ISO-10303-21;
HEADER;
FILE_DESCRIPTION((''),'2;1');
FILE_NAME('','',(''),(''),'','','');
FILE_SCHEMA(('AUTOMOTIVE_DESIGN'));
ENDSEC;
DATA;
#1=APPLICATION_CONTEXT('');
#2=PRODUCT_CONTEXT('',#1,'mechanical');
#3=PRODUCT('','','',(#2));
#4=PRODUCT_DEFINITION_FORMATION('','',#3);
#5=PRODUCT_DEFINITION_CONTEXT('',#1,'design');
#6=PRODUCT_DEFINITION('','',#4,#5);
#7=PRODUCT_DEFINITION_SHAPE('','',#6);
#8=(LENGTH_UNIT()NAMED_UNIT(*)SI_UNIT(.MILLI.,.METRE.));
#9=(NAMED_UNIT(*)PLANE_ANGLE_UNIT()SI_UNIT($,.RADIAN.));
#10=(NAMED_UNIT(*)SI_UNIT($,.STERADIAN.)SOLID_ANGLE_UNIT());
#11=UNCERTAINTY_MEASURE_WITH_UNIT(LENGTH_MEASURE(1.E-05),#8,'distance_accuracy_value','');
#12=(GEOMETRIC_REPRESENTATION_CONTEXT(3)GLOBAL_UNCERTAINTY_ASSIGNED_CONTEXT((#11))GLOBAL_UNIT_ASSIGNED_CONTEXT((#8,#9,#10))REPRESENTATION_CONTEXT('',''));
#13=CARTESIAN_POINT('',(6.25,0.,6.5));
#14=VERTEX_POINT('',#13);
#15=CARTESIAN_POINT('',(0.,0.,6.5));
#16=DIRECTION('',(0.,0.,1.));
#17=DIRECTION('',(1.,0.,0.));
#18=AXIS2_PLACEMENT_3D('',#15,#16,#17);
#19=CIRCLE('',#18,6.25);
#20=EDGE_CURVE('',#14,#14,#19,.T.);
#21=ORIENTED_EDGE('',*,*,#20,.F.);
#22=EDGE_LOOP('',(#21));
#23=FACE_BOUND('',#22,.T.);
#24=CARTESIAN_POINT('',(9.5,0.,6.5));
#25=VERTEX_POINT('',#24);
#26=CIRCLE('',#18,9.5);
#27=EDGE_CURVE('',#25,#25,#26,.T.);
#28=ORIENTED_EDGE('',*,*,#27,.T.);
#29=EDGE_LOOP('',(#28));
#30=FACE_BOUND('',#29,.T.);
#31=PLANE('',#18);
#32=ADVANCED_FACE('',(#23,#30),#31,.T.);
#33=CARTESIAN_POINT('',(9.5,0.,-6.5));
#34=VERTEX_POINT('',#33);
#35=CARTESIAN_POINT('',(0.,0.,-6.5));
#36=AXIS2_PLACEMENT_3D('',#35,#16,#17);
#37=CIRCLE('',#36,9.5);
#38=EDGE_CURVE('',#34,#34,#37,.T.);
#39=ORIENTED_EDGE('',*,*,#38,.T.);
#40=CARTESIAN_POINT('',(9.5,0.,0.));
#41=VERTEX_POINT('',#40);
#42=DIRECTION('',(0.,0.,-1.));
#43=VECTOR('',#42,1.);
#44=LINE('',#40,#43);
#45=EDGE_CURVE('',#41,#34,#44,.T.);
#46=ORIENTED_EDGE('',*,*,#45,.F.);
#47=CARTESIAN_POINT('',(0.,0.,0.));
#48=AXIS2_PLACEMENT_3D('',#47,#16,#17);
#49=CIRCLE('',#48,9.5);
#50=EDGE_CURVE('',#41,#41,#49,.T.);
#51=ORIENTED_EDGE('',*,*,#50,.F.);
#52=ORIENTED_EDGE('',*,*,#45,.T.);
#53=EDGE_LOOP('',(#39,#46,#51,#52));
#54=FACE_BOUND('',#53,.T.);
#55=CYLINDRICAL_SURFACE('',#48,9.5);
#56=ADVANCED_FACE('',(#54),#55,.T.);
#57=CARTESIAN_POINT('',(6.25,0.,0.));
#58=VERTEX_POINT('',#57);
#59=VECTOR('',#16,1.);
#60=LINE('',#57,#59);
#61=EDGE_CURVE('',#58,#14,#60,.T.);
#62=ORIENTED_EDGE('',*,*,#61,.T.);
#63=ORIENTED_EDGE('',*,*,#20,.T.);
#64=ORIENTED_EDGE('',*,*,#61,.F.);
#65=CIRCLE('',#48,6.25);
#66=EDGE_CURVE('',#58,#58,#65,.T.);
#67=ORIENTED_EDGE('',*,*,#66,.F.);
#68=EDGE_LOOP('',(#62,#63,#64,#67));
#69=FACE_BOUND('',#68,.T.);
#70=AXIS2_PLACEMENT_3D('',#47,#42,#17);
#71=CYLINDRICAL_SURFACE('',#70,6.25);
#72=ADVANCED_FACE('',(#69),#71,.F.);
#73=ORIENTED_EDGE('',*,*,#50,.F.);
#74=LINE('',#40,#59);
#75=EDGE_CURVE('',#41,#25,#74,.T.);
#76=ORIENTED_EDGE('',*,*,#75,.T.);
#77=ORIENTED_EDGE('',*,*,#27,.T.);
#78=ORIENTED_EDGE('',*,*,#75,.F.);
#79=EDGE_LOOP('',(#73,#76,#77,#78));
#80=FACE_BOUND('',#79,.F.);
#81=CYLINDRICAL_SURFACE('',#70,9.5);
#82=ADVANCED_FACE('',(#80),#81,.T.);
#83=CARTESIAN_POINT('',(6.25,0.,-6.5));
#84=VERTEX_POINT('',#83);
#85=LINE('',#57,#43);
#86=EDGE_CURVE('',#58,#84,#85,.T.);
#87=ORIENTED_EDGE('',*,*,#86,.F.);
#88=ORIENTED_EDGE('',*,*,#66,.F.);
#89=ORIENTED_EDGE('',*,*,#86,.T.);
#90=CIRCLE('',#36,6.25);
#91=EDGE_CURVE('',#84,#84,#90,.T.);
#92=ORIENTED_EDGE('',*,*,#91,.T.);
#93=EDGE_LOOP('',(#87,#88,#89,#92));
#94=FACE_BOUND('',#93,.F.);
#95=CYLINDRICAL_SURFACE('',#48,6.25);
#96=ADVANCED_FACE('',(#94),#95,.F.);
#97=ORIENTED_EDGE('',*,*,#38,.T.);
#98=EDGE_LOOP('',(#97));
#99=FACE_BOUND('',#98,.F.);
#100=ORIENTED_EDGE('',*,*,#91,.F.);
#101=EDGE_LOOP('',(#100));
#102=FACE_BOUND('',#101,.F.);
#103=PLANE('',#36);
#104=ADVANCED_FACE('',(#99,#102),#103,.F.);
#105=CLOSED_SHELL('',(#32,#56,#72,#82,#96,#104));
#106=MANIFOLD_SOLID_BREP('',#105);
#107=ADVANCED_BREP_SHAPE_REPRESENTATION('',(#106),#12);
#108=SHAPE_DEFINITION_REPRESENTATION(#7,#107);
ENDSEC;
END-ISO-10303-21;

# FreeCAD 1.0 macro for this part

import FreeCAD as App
import Part
import Sketcher
from FreeCAD import Vector
Q = App.Units.Quantity

doc = App.newDocument("Part")
body = doc.addObject("PartDesign::Body", "Body")

sketch1 = doc.addObject("Sketcher::SketchObject", "Sketch")
body.addObject(sketch1)
sketch1.AttachmentSupport = (doc.XY_Plane, [""])
sketch1.MapMode = "FlatFace"
sketch1.addGeometry(Part.Circle(Vector(0, 0, 0), Vector(0, 0, 1), 10), False)
sketch1.addGeometry(Part.Circle(Vector(0, 0, 0), Vector(0, 0, 1), 6), False)
sketch1.addConstraint(Sketcher.Constraint("Coincident", 0, 3, -1, 1))
sketch1.addConstraint(Sketcher.Constraint("Coincident", 1, 3, -1, 1))
sketch1.addConstraint(Sketcher.Constraint("Diameter", 0, Q("19 mm")))
sketch1.addConstraint(Sketcher.Constraint("Diameter", 1, Q("12.5 mm")))
pad1 = doc.addObject("PartDesign::Pad", "Pad")
body.addObject(pad1)
pad1.Profile = sketch1
pad1.Length = 13
pad1.Midplane = True

doc.recompute()
